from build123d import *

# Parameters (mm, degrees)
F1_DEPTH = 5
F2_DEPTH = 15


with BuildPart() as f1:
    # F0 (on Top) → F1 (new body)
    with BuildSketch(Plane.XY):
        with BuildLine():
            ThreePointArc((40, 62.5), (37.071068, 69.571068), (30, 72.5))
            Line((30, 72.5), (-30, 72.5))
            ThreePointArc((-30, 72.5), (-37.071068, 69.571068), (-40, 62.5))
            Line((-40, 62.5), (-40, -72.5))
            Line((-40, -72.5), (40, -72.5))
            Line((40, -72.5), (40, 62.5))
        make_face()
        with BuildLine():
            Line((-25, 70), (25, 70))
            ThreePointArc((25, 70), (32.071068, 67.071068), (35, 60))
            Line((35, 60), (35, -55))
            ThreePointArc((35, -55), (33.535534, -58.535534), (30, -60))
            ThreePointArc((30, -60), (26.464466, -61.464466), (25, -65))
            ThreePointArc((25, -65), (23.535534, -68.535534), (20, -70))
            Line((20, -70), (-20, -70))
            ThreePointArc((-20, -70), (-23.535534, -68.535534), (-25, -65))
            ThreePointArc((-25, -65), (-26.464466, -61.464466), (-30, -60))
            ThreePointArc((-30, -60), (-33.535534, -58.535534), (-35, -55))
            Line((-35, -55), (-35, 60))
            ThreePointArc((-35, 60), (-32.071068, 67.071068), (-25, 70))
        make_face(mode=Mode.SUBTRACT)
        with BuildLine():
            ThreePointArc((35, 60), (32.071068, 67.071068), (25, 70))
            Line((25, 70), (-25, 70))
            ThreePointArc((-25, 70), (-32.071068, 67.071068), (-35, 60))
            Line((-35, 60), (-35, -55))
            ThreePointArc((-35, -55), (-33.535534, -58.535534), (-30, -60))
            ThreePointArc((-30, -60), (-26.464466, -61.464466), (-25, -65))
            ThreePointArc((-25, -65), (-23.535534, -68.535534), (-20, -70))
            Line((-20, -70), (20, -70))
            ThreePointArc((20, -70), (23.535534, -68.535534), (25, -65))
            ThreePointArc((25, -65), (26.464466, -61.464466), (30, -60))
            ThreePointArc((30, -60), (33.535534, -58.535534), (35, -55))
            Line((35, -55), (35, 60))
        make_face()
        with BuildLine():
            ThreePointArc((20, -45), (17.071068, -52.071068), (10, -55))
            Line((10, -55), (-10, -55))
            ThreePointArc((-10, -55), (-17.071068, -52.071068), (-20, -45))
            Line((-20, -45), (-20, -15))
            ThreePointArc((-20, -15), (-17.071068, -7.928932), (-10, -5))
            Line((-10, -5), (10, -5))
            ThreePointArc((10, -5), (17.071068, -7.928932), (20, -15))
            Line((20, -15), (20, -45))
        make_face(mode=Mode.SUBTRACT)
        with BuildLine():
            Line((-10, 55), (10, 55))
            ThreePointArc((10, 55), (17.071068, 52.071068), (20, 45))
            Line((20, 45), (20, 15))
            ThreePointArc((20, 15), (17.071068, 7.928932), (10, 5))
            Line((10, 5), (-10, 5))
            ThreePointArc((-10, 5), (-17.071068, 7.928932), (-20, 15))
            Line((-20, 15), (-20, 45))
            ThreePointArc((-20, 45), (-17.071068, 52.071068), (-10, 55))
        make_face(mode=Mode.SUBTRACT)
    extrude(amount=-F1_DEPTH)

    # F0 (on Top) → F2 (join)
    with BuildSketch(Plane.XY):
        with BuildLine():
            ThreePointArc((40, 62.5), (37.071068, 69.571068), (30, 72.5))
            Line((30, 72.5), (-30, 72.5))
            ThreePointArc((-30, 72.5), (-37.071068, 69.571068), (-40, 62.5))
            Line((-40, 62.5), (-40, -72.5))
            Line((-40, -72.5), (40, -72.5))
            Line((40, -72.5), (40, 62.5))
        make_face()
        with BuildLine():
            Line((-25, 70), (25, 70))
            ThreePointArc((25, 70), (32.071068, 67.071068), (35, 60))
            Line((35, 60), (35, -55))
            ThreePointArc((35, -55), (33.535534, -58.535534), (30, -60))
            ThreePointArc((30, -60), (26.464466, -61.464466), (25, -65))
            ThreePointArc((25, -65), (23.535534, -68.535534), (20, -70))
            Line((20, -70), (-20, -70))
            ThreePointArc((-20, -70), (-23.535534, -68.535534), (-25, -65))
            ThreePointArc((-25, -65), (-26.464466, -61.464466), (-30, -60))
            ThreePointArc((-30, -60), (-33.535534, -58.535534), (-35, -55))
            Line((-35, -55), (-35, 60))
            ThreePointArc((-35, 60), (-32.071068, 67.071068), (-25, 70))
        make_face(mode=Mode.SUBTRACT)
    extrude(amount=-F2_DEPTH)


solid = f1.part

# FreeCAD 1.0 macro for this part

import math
import FreeCAD as App
import Part
import Sketcher

doc = App.newDocument("Part")
body = doc.addObject("PartDesign::Body", "Body")

# Sketch on XY plane
sketch1 = body.newObject("Sketcher::SketchObject", "Sketch")
sketch1.AttachmentSupport = (doc.getObject("XY_Plane"), [""])
sketch1.MapMode = "FlatFace"
sketch1.addGeometry(Part.ArcOfCircle(Part.Circle(App.Vector(30.000001, 62.500001, 0), App.Vector(0, 0, 1), 9.999999), math.radians(-0.000004), math.radians(90.000004)), False)
sketch1.addGeometry(Part.LineSegment(App.Vector(30, 72.5, 0), App.Vector(-30, 72.5, 0)), False)
sketch1.addGeometry(Part.ArcOfCircle(Part.Circle(App.Vector(-30.000001, 62.500001, 0), App.Vector(0, 0, 1), 9.999999), math.radians(89.999996), math.radians(180.000004)), False)
sketch1.addGeometry(Part.LineSegment(App.Vector(-40, 62.5, 0), App.Vector(-40, -72.5, 0)), False)
sketch1.addGeometry(Part.LineSegment(App.Vector(-40, -72.5, 0), App.Vector(40, -72.5, 0)), False)
sketch1.addGeometry(Part.LineSegment(App.Vector(40, -72.5, 0), App.Vector(40, 62.5, 0)), False)
sketch1.addGeometry(Part.LineSegment(App.Vector(20, -15, 0), App.Vector(20, -45, 0)), False)
sketch1.addGeometry(Part.ArcOfCircle(Part.Circle(App.Vector(10.000001, -45.000001, 0), App.Vector(0, 0, 1), 9.999999), math.radians(-90.000004), math.radians(0.000004)), False)
sketch1.addGeometry(Part.LineSegment(App.Vector(10, -55, 0), App.Vector(-10, -55, 0)), False)
sketch1.addGeometry(Part.ArcOfCircle(Part.Circle(App.Vector(-10.000001, -45.000001, 0), App.Vector(0, 0, 1), 9.999999), math.radians(179.999996), math.radians(270.000004)), False)
sketch1.addGeometry(Part.LineSegment(App.Vector(-20, -45, 0), App.Vector(-20, -15, 0)), False)
sketch1.addGeometry(Part.ArcOfCircle(Part.Circle(App.Vector(-10.000001, -14.999999, 0), App.Vector(0, 0, 1), 9.999999), math.radians(89.999996), math.radians(180.000004)), False)
sketch1.addGeometry(Part.LineSegment(App.Vector(-10, -5, 0), App.Vector(10, -5, 0)), False)
sketch1.addGeometry(Part.ArcOfCircle(Part.Circle(App.Vector(10.000001, -14.999999, 0), App.Vector(0, 0, 1), 9.999999), math.radians(-0.000004), math.radians(90.000004)), False)
sketch1.addGeometry(Part.ArcOfCircle(Part.Circle(App.Vector(-10.000001, 45.000001, 0), App.Vector(0, 0, 1), 9.999999), math.radians(89.999996), math.radians(180.000004)), False)
sketch1.addGeometry(Part.LineSegment(App.Vector(-10, 55, 0), App.Vector(10, 55, 0)), False)
sketch1.addGeometry(Part.ArcOfCircle(Part.Circle(App.Vector(10.000001, 45.000001, 0), App.Vector(0, 0, 1), 9.999999), math.radians(-0.000004), math.radians(90.000004)), False)
sketch1.addGeometry(Part.LineSegment(App.Vector(20, 45, 0), App.Vector(20, 15, 0)), False)
sketch1.addGeometry(Part.ArcOfCircle(Part.Circle(App.Vector(10.000001, 14.999999, 0), App.Vector(0, 0, 1), 9.999999), math.radians(-90.000004), math.radians(0.000004)), False)
sketch1.addGeometry(Part.LineSegment(App.Vector(10, 5, 0), App.Vector(-10, 5, 0)), False)
sketch1.addGeometry(Part.ArcOfCircle(Part.Circle(App.Vector(-10.000001, 14.999999, 0), App.Vector(0, 0, 1), 9.999999), math.radians(179.999996), math.radians(270.000004)), False)
sketch1.addGeometry(Part.LineSegment(App.Vector(-20, 15, 0), App.Vector(-20, 45, 0)), False)
sketch1.addConstraint(Sketcher.Constraint("Tangent", 0, 2, 1, 1))
sketch1.addConstraint(Sketcher.Constraint("Tangent", 1, 2, 2, 1))
sketch1.addConstraint(Sketcher.Constraint("Tangent", 2, 2, 3, 1))
sketch1.addConstraint(Sketcher.Constraint("Coincident", 3, 2, 4, 1))
sketch1.addConstraint(Sketcher.Constraint("Coincident", 4, 2, 5, 1))
sketch1.addConstraint(Sketcher.Constraint("Tangent", 5, 2, 0, 1))
sketch1.addConstraint(Sketcher.Constraint("Tangent", 6, 2, 7, 2))
sketch1.addConstraint(Sketcher.Constraint("Tangent", 7, 1, 8, 1))
sketch1.addConstraint(Sketcher.Constraint("Tangent", 8, 2, 9, 2))
sketch1.addConstraint(Sketcher.Constraint("Tangent", 9, 1, 10, 1))
sketch1.addConstraint(Sketcher.Constraint("Tangent", 10, 2, 11, 2))
sketch1.addConstraint(Sketcher.Constraint("Tangent", 11, 1, 12, 1))
sketch1.addConstraint(Sketcher.Constraint("Tangent", 12, 2, 13, 2))
sketch1.addConstraint(Sketcher.Constraint("Tangent", 13, 1, 6, 1))
sketch1.addConstraint(Sketcher.Constraint("Tangent", 14, 1, 15, 1))
sketch1.addConstraint(Sketcher.Constraint("Tangent", 15, 2, 16, 2))
sketch1.addConstraint(Sketcher.Constraint("Tangent", 16, 1, 17, 1))
sketch1.addConstraint(Sketcher.Constraint("Tangent", 17, 2, 18, 2))
sketch1.addConstraint(Sketcher.Constraint("Tangent", 18, 1, 19, 1))
sketch1.addConstraint(Sketcher.Constraint("Tangent", 19, 2, 20, 2))
sketch1.addConstraint(Sketcher.Constraint("Tangent", 20, 1, 21, 1))
sketch1.addConstraint(Sketcher.Constraint("Tangent", 21, 2, 14, 2))
sketch1.addConstraint(Sketcher.Constraint("Horizontal", 1))
sketch1.addConstraint(Sketcher.Constraint("Vertical", 3))
sketch1.addConstraint(Sketcher.Constraint("Horizontal", 4))
sketch1.addConstraint(Sketcher.Constraint("Vertical", 5))
sketch1.addConstraint(Sketcher.Constraint("Vertical", 6))
sketch1.addConstraint(Sketcher.Constraint("Horizontal", 8))
sketch1.addConstraint(Sketcher.Constraint("Vertical", 10))
sketch1.addConstraint(Sketcher.Constraint("Horizontal", 12))
sketch1.addConstraint(Sketcher.Constraint("Horizontal", 15))
sketch1.addConstraint(Sketcher.Constraint("Vertical", 17))
sketch1.addConstraint(Sketcher.Constraint("Horizontal", 19))
sketch1.addConstraint(Sketcher.Constraint("Vertical", 21))
sketch1.addConstraint(Sketcher.Constraint("Equal", 0, 2))
sketch1.addConstraint(Sketcher.Constraint("Equal", 2, 7))
sketch1.addConstraint(Sketcher.Constraint("Equal", 7, 9))
sketch1.addConstraint(Sketcher.Constraint("Equal", 9, 11))
sketch1.addConstraint(Sketcher.Constraint("Equal", 11, 13))
sketch1.addConstraint(Sketcher.Constraint("Equal", 13, 14))
sketch1.addConstraint(Sketcher.Constraint("Equal", 14, 16))
sketch1.addConstraint(Sketcher.Constraint("Equal", 16, 18))
sketch1.addConstraint(Sketcher.Constraint("Equal", 18, 20))
sketch1.addConstraint(Sketcher.Constraint("Symmetric", 7, 3, 14, 3, -1, 1))
sketch1.addConstraint(Sketcher.Constraint("Symmetric", 11, 3, 18, 3, -1, 1))
sketch1.addConstraint(Sketcher.Constraint("Vertical", 11, 3, 14, 3))
sketch1.addConstraint(Sketcher.Constraint("Radius", 0, 9.999999))
sketch1.addConstraint(Sketcher.Constraint("DistanceX", 1, 2, 1, 1, 60.0))
sketch1.addConstraint(Sketcher.Constraint("DistanceX", 8, 2, 8, 1, 20.0))
sketch1.addConstraint(Sketcher.Constraint("DistanceY", 3, 2, 3, 1, 135.0))
sketch1.addConstraint(Sketcher.Constraint("DistanceY", 6, 2, 6, 1, 30.0))
sketch1.addConstraint(Sketcher.Constraint("DistanceX", -1, 1, 0, 3, 30.000001))
sketch1.addConstraint(Sketcher.Constraint("DistanceY", 7, 3, -1, 1, 45.000001))
sketch1.addConstraint(Sketcher.Constraint("DistanceY", -1, 1, 0, 3, 62.500001))
pad1 = body.newObject("PartDesign::Pad", "Pad")
pad1.Profile = sketch1
pad1.Length = 5
pad1.Reversed = True

# Sketch on XY plane
sketch2 = body.newObject("Sketcher::SketchObject", "Sketch001")
sketch2.AttachmentSupport = (doc.getObject("XY_Plane"), [""])
sketch2.MapMode = "FlatFace"
sketch2.addGeometry(Part.ArcOfCircle(Part.Circle(App.Vector(30.000001, 62.500001, 0), App.Vector(0, 0, 1), 9.999999), math.radians(-0.000004), math.radians(90.000004)), False)
sketch2.addGeometry(Part.LineSegment(App.Vector(30, 72.5, 0), App.Vector(-30, 72.5, 0)), False)
sketch2.addGeometry(Part.ArcOfCircle(Part.Circle(App.Vector(-30.000001, 62.500001, 0), App.Vector(0, 0, 1), 9.999999), math.radians(89.999996), math.radians(180.000004)), False)
sketch2.addGeometry(Part.LineSegment(App.Vector(-40, 62.5, 0), App.Vector(-40, -72.5, 0)), False)
sketch2.addGeometry(Part.LineSegment(App.Vector(-40, -72.5, 0), App.Vector(40, -72.5, 0)), False)
sketch2.addGeometry(Part.LineSegment(App.Vector(40, -72.5, 0), App.Vector(40, 62.5, 0)), False)
sketch2.addGeometry(Part.ArcOfCircle(Part.Circle(App.Vector(-25.000001, 60.000001, 0), App.Vector(0, 0, 1), 9.999999), math.radians(89.999996), math.radians(180.000004)), False)
sketch2.addGeometry(Part.LineSegment(App.Vector(-25, 70, 0), App.Vector(25, 70, 0)), False)
sketch2.addGeometry(Part.ArcOfCircle(Part.Circle(App.Vector(25.000001, 60.000001, 0), App.Vector(0, 0, 1), 9.999999), math.radians(-0.000004), math.radians(90.000004)), False)
sketch2.addGeometry(Part.LineSegment(App.Vector(35, 60, 0), App.Vector(35, -55, 0)), False)
sketch2.addGeometry(Part.ArcOfCircle(Part.Circle(App.Vector(30, -55, 0), App.Vector(0, 0, 1), 5), math.radians(-90.000004), math.radians(0.000004)), False)
sketch2.addGeometry(Part.ArcOfCircle(Part.Circle(App.Vector(30, -65, 0), App.Vector(0, 0, 1), 5), math.radians(89.999996), math.radians(180.000004)), False)
sketch2.addGeometry(Part.ArcOfCircle(Part.Circle(App.Vector(20, -65, 0), App.Vector(0, 0, 1), 5), math.radians(-90.000004), math.radians(0.000004)), False)
sketch2.addGeometry(Part.LineSegment(App.Vector(20, -70, 0), App.Vector(-20, -70, 0)), False)
sketch2.addGeometry(Part.ArcOfCircle(Part.Circle(App.Vector(-20, -65, 0), App.Vector(0, 0, 1), 5), math.radians(179.999996), math.radians(270.000004)), False)
sketch2.addGeometry(Part.ArcOfCircle(Part.Circle(App.Vector(-30, -65, 0), App.Vector(0, 0, 1), 5), math.radians(-0.000004), math.radians(90.000004)), False)
sketch2.addGeometry(Part.ArcOfCircle(Part.Circle(App.Vector(-30, -55, 0), App.Vector(0, 0, 1), 5), math.radians(179.999996), math.radians(270.000004)), False)
sketch2.addGeometry(Part.LineSegment(App.Vector(-35, -55, 0), App.Vector(-35, 60, 0)), False)
sketch2.addConstraint(Sketcher.Constraint("Tangent", 0, 2, 1, 1))
sketch2.addConstraint(Sketcher.Constraint("Tangent", 1, 2, 2, 1))
sketch2.addConstraint(Sketcher.Constraint("Tangent", 2, 2, 3, 1))
sketch2.addConstraint(Sketcher.Constraint("Coincident", 3, 2, 4, 1))
sketch2.addConstraint(Sketcher.Constraint("Coincident", 4, 2, 5, 1))
sketch2.addConstraint(Sketcher.Constraint("Tangent", 5, 2, 0, 1))
sketch2.addConstraint(Sketcher.Constraint("Tangent", 6, 1, 7, 1))
sketch2.addConstraint(Sketcher.Constraint("Tangent", 7, 2, 8, 2))
sketch2.addConstraint(Sketcher.Constraint("Tangent", 8, 1, 9, 1))
sketch2.addConstraint(Sketcher.Constraint("Tangent", 9, 2, 10, 2))
sketch2.addConstraint(Sketcher.Constraint("Tangent", 10, 1, 11, 1))
sketch2.addConstraint(Sketcher.Constraint("Tangent", 11, 2, 12, 2))
sketch2.addConstraint(Sketcher.Constraint("Tangent", 12, 1, 13, 1))
sketch2.addConstraint(Sketcher.Constraint("Tangent", 13, 2, 14, 2))
sketch2.addConstraint(Sketcher.Constraint("Tangent", 14, 1, 15, 1))
sketch2.addConstraint(Sketcher.Constraint("Tangent", 15, 2, 16, 2))
sketch2.addConstraint(Sketcher.Constraint("Tangent", 16, 1, 17, 1))
sketch2.addConstraint(Sketcher.Constraint("Tangent", 17, 2, 6, 2))
sketch2.addConstraint(Sketcher.Constraint("Horizontal", 1))
sketch2.addConstraint(Sketcher.Constraint("Vertical", 3))
sketch2.addConstraint(Sketcher.Constraint("Horizontal", 4))
sketch2.addConstraint(Sketcher.Constraint("Vertical", 5))
sketch2.addConstraint(Sketcher.Constraint("Horizontal", 7))
sketch2.addConstraint(Sketcher.Constraint("Vertical", 9))
sketch2.addConstraint(Sketcher.Constraint("Horizontal", 13))
sketch2.addConstraint(Sketcher.Constraint("Vertical", 17))
sketch2.addConstraint(Sketcher.Constraint("Equal", 0, 2))
sketch2.addConstraint(Sketcher.Constraint("Equal", 2, 6))
sketch2.addConstraint(Sketcher.Constraint("Equal", 6, 8))
sketch2.addConstraint(Sketcher.Constraint("Equal", 10, 11))
sketch2.addConstraint(Sketcher.Constraint("Equal", 11, 12))
sketch2.addConstraint(Sketcher.Constraint("Equal", 12, 14))
sketch2.addConstraint(Sketcher.Constraint("Equal", 14, 15))
sketch2.addConstraint(Sketcher.Constraint("Equal", 15, 16))
sketch2.addConstraint(Sketcher.Constraint("Symmetric", 11, 3, 15, 3, -2))
sketch2.addConstraint(Sketcher.Constraint("Horizontal", 11, 3, 12, 3))
sketch2.addConstraint(Sketcher.Constraint("Vertical", 0, 3, 10, 3))
sketch2.addConstraint(Sketcher.Constraint("Vertical", 10, 3, 11, 3))
sketch2.addConstraint(Sketcher.Constraint("Vertical", 2, 3, 15, 3))
sketch2.addConstraint(Sketcher.Constraint("Vertical", 15, 3, 16, 3))
sketch2.addConstraint(Sketcher.Constraint("Vertical", 7, 2, 11, 2))
sketch2.addConstraint(Sketcher.Constraint("Radius", 0, 9.999999))
sketch2.addConstraint(Sketcher.Constraint("DistanceX", 1, 2, 1, 1, 60.0))
sketch2.addConstraint(Sketcher.Constraint("DistanceY", 3, 2, 3, 1, 135.0))
sketch2.addConstraint(Sketcher.Constraint("DistanceY", 9, 2, 9, 1, 115.0))
sketch2.addConstraint(Sketcher.Constraint("DistanceY", -1, 1, 6, 3, 60.000001))
sketch2.addConstraint(Sketcher.Constraint("DistanceY", -1, 1, 0, 3, 62.500001))
pad2 = body.newObject("PartDesign::Pad", "Pad001")
pad2.Profile = sketch2
pad2.Length = 15
pad2.Reversed = True

doc.recompute()
